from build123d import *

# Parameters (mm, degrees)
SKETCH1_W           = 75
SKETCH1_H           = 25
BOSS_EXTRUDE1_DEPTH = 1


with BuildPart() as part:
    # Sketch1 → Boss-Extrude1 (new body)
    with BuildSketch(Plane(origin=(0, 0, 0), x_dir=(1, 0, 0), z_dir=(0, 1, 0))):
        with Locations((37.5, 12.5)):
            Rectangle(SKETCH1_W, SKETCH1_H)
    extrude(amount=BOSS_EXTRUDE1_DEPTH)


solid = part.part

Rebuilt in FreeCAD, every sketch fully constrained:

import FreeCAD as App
import Part
import Sketcher
from FreeCAD import Vector

doc = App.newDocument("Part")
body = doc.addObject("PartDesign::Body", "Body")

sketch1 = doc.addObject("Sketcher::SketchObject", "Sketch")
body.addObject(sketch1)
sketch1.AttachmentSupport = (doc.XZ_Plane, [""])
sketch1.MapMode = "FlatFace"
sketch1.addGeometry([
    Part.LineSegment(Vector(0, -25, 0), Vector(0, 0, 0)),
    Part.LineSegment(Vector(0, 0, 0), Vector(75, 0, 0)),
    Part.LineSegment(Vector(75, 0, 0), Vector(75, -25, 0)),
    Part.LineSegment(Vector(75, -25, 0), Vector(0, -25, 0)),
], False)
sketch1.addConstraint([
    Sketcher.Constraint("Coincident", 0, 2, 1, 1),
    Sketcher.Constraint("Coincident", 1, 2, 2, 1),
    Sketcher.Constraint("Coincident", 2, 2, 3, 1),
    Sketcher.Constraint("Coincident", 3, 2, 0, 1),
    Sketcher.Constraint("Vertical", 0),
    Sketcher.Constraint("Horizontal", 1),
    Sketcher.Constraint("Vertical", 2),
    Sketcher.Constraint("Horizontal", 3),
    Sketcher.Constraint("Coincident", 0, 2, -1, 1),
    Sketcher.Constraint("DistanceX", 1, 1, 1, 2, 75.0),
    Sketcher.Constraint("DistanceY", 0, 1, 0, 2, 25.0),
])
pad1 = doc.addObject("PartDesign::Pad", "Pad")
body.addObject(pad1)
pad1.Profile = sketch1
pad1.Length = 1
pad1.Reversed = True

doc.recompute()
